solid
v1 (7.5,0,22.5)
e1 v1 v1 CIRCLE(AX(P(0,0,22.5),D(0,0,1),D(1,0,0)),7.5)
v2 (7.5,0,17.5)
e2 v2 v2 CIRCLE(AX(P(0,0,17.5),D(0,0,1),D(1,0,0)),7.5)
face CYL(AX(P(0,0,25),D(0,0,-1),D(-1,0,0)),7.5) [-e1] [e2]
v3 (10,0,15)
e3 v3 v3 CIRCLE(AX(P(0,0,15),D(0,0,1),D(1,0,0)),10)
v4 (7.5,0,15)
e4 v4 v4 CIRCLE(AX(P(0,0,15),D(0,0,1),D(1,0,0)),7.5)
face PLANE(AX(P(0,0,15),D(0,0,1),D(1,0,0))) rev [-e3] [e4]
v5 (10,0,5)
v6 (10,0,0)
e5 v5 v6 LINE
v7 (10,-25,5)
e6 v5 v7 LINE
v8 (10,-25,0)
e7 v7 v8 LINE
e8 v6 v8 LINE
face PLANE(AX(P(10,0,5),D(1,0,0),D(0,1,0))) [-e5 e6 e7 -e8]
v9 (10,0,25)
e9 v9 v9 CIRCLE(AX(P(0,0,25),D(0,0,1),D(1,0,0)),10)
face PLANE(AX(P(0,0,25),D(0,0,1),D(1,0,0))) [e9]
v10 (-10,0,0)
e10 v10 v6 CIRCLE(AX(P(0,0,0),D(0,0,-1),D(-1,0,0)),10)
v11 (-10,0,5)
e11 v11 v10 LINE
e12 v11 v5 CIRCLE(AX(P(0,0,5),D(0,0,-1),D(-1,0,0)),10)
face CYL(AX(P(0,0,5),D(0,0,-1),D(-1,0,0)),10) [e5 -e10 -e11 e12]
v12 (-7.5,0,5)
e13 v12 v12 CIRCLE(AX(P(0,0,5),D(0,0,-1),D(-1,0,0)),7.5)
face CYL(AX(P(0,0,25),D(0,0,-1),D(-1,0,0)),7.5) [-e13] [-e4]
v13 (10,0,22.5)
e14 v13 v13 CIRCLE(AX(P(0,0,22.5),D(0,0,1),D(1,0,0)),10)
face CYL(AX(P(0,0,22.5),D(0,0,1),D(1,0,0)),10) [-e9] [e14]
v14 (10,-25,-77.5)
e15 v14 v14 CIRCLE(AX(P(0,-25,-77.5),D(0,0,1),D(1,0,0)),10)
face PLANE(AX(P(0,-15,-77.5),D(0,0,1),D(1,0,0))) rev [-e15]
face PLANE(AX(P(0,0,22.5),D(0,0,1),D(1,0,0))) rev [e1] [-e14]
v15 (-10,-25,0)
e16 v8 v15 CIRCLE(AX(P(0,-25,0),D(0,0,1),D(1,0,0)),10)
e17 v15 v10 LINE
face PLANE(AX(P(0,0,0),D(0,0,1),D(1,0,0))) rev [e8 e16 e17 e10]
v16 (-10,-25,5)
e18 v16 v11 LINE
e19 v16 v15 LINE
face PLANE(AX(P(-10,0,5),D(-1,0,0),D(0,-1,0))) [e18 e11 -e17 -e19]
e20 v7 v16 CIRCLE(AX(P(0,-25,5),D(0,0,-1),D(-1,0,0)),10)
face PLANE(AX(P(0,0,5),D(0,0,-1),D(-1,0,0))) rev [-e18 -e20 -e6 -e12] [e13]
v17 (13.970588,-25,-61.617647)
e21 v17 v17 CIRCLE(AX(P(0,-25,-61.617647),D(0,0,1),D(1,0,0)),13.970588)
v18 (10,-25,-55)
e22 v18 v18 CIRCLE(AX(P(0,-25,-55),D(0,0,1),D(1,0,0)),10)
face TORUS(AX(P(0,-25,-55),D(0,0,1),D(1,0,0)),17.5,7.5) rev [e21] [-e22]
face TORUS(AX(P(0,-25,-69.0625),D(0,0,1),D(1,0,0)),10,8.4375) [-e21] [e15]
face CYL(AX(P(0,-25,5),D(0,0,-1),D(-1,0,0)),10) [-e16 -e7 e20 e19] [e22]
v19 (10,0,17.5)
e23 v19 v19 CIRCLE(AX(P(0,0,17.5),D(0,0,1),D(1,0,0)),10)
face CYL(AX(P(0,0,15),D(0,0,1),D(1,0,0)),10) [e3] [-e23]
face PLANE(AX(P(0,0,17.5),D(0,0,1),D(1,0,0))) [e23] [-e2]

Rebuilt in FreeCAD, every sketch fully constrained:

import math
import FreeCAD as App
import Part
import Sketcher
Q = App.Units.Quantity

doc = App.newDocument("Part")
body = doc.addObject("PartDesign::Body", "Body")

sketch1 = body.newObject("Sketcher::SketchObject", "Sketch")
sketch1.AttachmentSupport = (doc.getObject("XY_Plane"), [""])
sketch1.MapMode = "FlatFace"
sketch1.addGeometry(Part.Circle(App.Vector(0, 0, 0), App.Vector(0, 0, 1), 7.5), False)
sketch1.addConstraint(Sketcher.Constraint("Coincident", 0, 3, -1, 1))
sketch1.addConstraint(Sketcher.Constraint("Diameter", 0, Q("15 mm")))
pad1 = body.newObject("PartDesign::Pad", "Pad")
pad1.Profile = sketch1
pad1.Length = 25

sketch2 = body.newObject("Sketcher::SketchObject", "Sketch001")
sketch2.AttachmentSupport = (doc.getObject("XY_Plane"), [""])
sketch2.MapMode = "FlatFace"
sketch2.AttachmentOffset = App.Placement(App.Vector(0, 0, 25), App.Rotation())
sketch2.addGeometry(Part.Circle(App.Vector(0, 0, 0), App.Vector(0, 0, 1), 10), False)
sketch2.addConstraint(Sketcher.Constraint("Coincident", 0, 3, -1, 1))
sketch2.addConstraint(Sketcher.Constraint("Diameter", 0, Q("20 mm")))
pad2 = body.newObject("PartDesign::Pad", "Pad001")
pad2.Profile = sketch2
pad2.Length = 2.5
pad2.Reversed = True

sketch3 = body.newObject("Sketcher::SketchObject", "Sketch002")
sketch3.AttachmentSupport = (doc.getObject("XY_Plane"), [""])
sketch3.MapMode = "FlatFace"
sketch3.AttachmentOffset = App.Placement(App.Vector(0, 0, 17.5), App.Rotation())
sketch3.addGeometry(Part.Circle(App.Vector(0, 0, 0), App.Vector(0, 0, 1), 10), False)
sketch3.addConstraint(Sketcher.Constraint("Coincident", 0, 3, -1, 1))
sketch3.addConstraint(Sketcher.Constraint("Diameter", 0, Q("20 mm")))
pad3 = body.newObject("PartDesign::Pad", "Pad002")
pad3.Profile = sketch3
pad3.Length = 2.5
pad3.Reversed = True

sketch4 = body.newObject("Sketcher::SketchObject", "Sketch003")
sketch4.AttachmentSupport = (doc.getObject("XY_Plane"), [""])
sketch4.MapMode = "FlatFace"
sketch4.addGeometry(Part.LineSegment(App.Vector(10, 0, 0), App.Vector(10, -25, 0)), False)
sketch4.addGeometry(Part.ArcOfCircle(Part.Circle(App.Vector(0, -25, 0), App.Vector(0, 0, 1), 10), math.radians(180), math.radians(360)), False)
sketch4.addGeometry(Part.LineSegment(App.Vector(-10, -25, 0), App.Vector(-10, 0, 0)), False)
sketch4.addGeometry(Part.ArcOfCircle(Part.Circle(App.Vector(0, 0, 0), App.Vector(0, 0, 1), 10), math.radians(0), math.radians(180)), False)
sketch4.addConstraint(Sketcher.Constraint("Tangent", 0, 2, 1, 2))
sketch4.addConstraint(Sketcher.Constraint("Tangent", 1, 1, 2, 1))
sketch4.addConstraint(Sketcher.Constraint("Tangent", 2, 2, 3, 2))
sketch4.addConstraint(Sketcher.Constraint("Tangent", 3, 1, 0, 1))
sketch4.addConstraint(Sketcher.Constraint("Vertical", 0))
sketch4.addConstraint(Sketcher.Constraint("Vertical", 2))
sketch4.addConstraint(Sketcher.Constraint("Coincident", 3, 3, -1, 1))
sketch4.addConstraint(Sketcher.Constraint("Radius", 1, Q("10 mm")))
sketch4.addConstraint(Sketcher.Constraint("DistanceY", 0, 2, 0, 1, Q("25 mm")))
pad4 = body.newObject("PartDesign::Pad", "Pad003")
pad4.Profile = sketch4
pad4.Length = 5

sketch5 = body.newObject("Sketcher::SketchObject", "Sketch004")
sketch5.AttachmentSupport = (doc.getObject("XY_Plane"), [""])
sketch5.MapMode = "FlatFace"
sketch5.AttachmentOffset = App.Placement(App.Vector(0, 0, 5), App.Rotation())
sketch5.addGeometry(Part.Circle(App.Vector(0, -25, 0), App.Vector(0, 0, 1), 10), False)
sketch5.addConstraint(Sketcher.Constraint("PointOnObject", 0, 3, -2))
sketch5.addConstraint(Sketcher.Constraint("Diameter", 0, Q("20 mm")))
sketch5.addConstraint(Sketcher.Constraint("DistanceY", 0, 3, -1, 1, Q("25 mm")))
pad5 = body.newObject("PartDesign::Pad", "Pad004")
pad5.Profile = sketch5
pad5.Length = 57.5
pad5.Reversed = True

sketch6 = body.newObject("Sketcher::SketchObject", "Sketch005")
sketch6.AttachmentSupport = (doc.getObject("YZ_Plane"), [""])
sketch6.MapMode = "FlatFace"
sketch6.addGeometry(Part.LineSegment(App.Vector(-25, -52.5, 0), App.Vector(-25, -77.5, 0)), False)
sketch6.addGeometry(Part.LineSegment(App.Vector(-25, -77.5, 0), App.Vector(-15, -77.5, 0)), False)
sketch6.addGeometry(Part.ArcOfCircle(Part.Circle(App.Vector(-15, -69.0625, 0), App.Vector(0, 0, 1), 8.4375), math.radians(-90), math.radians(61.927513)), False)
sketch6.addGeometry(Part.ArcOfCircle(Part.Circle(App.Vector(-7.5, -55, 0), App.Vector(0, 0, 1), 7.5), math.radians(180), math.radians(241.927513)), False)
sketch6.addGeometry(Part.LineSegment(App.Vector(-15, -55, 0), App.Vector(-15, -52.5, 0)), False)
sketch6.addGeometry(Part.LineSegment(App.Vector(-15, -52.5, 0), App.Vector(-25, -52.5, 0)), False)
sketch6.addGeometry(Part.LineSegment(App.Vector(-25, -52.5, 0), App.Vector(-25, -77.5, 0)), True)
sketch6.addConstraint(Sketcher.Constraint("Coincident", 0, 2, 1, 1))
sketch6.addConstraint(Sketcher.Constraint("Tangent", 1, 2, 2, 1))
sketch6.addConstraint(Sketcher.Constraint("Tangent", 2, 2, 3, 2))
sketch6.addConstraint(Sketcher.Constraint("Tangent", 3, 1, 4, 1))
sketch6.addConstraint(Sketcher.Constraint("Coincident", 4, 2, 5, 1))
sketch6.addConstraint(Sketcher.Constraint("Coincident", 5, 2, 0, 1))
sketch6.addConstraint(Sketcher.Constraint("Vertical", 0))
sketch6.addConstraint(Sketcher.Constraint("Horizontal", 1))
sketch6.addConstraint(Sketcher.Constraint("Vertical", 4))
sketch6.addConstraint(Sketcher.Constraint("Horizontal", 5))
sketch6.addConstraint(Sketcher.Constraint("Vertical", 6))
sketch6.addConstraint(Sketcher.Constraint("Coincident", 6, 1, 5, 2))
sketch6.addConstraint(Sketcher.Constraint("Horizontal", 1, 2, 6, 2))
sketch6.addConstraint(Sketcher.Constraint("Vertical", 1, 2, 3, 1))
sketch6.addConstraint(Sketcher.Constraint("Radius", 3, Q("7.5 mm")))
sketch6.addConstraint(Sketcher.Constraint("DistanceX", 1, 1, 1, 2, Q("10 mm")))
sketch6.addConstraint(Sketcher.Constraint("DistanceY", 0, 2, 0, 1, Q("25 mm")))
sketch6.addConstraint(Sketcher.Constraint("DistanceY", 4, 1, 4, 2, Q("2.5 mm")))
sketch6.addConstraint(Sketcher.Constraint("DistanceX", 2, 3, -1, 1, Q("15 mm")))
sketch6.addConstraint(Sketcher.Constraint("DistanceY", 3, 3, -1, 1, Q("55 mm")))
revolution = body.newObject("PartDesign::Revolution", "Revolution")
revolution.Profile = sketch6
revolution.ReferenceAxis = (sketch6, ["Axis0"])
revolution.Angle = 360

doc.recompute()
